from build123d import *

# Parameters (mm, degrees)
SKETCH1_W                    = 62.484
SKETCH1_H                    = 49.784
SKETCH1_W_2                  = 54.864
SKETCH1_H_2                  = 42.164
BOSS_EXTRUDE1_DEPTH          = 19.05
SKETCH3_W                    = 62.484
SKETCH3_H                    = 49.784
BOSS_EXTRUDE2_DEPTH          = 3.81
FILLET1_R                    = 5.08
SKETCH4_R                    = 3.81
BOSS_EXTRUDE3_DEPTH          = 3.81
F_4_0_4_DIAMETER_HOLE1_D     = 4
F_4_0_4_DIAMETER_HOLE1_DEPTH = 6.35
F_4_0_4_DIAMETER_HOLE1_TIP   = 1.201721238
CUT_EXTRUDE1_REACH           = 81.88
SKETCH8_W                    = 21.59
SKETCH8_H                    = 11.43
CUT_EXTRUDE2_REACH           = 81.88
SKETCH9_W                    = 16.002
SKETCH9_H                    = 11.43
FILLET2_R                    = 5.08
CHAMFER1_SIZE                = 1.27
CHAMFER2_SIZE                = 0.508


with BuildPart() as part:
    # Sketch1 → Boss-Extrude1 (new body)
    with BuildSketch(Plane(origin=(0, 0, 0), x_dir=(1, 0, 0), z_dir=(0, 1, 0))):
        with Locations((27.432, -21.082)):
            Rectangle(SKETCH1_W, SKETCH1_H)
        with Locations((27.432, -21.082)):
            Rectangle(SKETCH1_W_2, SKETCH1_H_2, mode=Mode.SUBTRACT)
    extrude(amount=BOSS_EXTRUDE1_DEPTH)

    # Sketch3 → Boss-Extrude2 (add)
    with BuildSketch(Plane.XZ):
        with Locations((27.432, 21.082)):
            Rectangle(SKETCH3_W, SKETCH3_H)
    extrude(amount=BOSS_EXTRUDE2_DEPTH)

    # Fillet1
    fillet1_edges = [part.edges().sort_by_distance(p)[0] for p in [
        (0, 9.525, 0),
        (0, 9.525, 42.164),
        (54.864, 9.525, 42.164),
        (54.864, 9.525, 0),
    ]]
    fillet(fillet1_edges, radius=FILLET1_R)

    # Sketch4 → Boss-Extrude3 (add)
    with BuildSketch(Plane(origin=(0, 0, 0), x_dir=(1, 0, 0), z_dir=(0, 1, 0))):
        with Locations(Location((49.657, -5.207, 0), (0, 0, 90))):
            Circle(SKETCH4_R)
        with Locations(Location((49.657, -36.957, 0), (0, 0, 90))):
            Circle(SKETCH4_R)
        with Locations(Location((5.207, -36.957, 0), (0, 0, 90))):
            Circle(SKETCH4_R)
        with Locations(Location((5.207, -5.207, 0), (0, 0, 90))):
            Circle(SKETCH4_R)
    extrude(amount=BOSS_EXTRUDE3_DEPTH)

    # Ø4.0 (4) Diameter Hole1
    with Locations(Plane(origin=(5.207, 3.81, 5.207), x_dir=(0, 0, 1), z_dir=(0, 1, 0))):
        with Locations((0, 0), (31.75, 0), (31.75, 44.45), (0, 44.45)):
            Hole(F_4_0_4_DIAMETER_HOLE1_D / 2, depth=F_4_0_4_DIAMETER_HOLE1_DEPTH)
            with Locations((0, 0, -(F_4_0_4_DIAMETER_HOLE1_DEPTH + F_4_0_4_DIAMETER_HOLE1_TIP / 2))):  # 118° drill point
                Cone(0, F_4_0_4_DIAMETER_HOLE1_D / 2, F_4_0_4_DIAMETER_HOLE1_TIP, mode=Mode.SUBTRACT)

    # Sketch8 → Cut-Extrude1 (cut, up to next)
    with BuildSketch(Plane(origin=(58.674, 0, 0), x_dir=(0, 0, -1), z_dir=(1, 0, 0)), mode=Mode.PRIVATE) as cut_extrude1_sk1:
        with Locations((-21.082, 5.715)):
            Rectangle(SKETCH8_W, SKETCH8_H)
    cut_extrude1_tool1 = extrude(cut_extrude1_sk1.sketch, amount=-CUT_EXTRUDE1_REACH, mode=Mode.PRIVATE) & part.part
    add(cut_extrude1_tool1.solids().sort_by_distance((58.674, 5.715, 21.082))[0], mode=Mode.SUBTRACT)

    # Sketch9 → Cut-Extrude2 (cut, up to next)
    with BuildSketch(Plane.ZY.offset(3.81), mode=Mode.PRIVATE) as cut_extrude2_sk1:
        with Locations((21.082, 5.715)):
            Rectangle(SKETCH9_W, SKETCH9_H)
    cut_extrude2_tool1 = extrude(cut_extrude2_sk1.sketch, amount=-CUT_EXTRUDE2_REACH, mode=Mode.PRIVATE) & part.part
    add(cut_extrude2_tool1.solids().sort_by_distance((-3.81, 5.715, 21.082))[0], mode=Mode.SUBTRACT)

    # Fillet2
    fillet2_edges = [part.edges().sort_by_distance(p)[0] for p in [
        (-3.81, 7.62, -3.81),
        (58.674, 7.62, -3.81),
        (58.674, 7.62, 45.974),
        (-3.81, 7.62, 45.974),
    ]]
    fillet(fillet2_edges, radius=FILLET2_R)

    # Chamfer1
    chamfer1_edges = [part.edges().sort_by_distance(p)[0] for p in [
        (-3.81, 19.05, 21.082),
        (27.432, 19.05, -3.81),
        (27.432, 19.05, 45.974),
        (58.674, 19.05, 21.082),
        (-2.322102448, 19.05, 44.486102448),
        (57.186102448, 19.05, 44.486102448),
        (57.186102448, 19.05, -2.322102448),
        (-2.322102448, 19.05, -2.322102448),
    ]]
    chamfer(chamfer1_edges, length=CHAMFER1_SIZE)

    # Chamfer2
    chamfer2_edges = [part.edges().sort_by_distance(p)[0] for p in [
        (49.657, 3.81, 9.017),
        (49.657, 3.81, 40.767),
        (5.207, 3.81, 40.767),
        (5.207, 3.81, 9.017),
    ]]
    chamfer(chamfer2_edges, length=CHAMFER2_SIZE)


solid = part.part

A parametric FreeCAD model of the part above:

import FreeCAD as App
import Part
import Sketcher
Q = App.Units.Quantity


def edges_at(feature, points):
    """Names of the edges that pass closest to the given points."""
    edges = feature.Shape.Edges
    near = lambda p: min(range(len(edges)), key=lambda i: edges[i].distToShape(Part.Vertex(*p))[0])
    return sorted({f"Edge{near(p) + 1}" for p in points})


def add_polygon(sketch, points):
    """Adds a closed chain of lines whose ends are joined by coincident constraints."""
    first, n = sketch.GeometryCount, len(points)
    for a, b in zip(points, points[1:] + points[:1]):
        sketch.addGeometry(Part.LineSegment(App.Vector(*a, 0), App.Vector(*b, 0)), False)
    for i in range(n):
        sketch.addConstraint(Sketcher.Constraint("Coincident", first + i, 2, first + (i + 1) % n, 1))

doc = App.newDocument("Part")
body = doc.addObject("PartDesign::Body", "Body")

# Sketch on XZ plane
sketch1 = body.newObject("Sketcher::SketchObject", "Sketch")
sketch1.AttachmentSupport = (doc.getObject("XZ_Plane"), [""])
sketch1.MapMode = "FlatFace"
add_polygon(sketch1, [(-4, -4), (-4, 46), (59, 46), (59, -4)])  # lines 0-3
add_polygon(sketch1, [(55, 42), (0, 42), (0, 0), (55, 0)])  # lines 4-7
sketch1.addConstraint(Sketcher.Constraint("Vertical", 0))
sketch1.addConstraint(Sketcher.Constraint("Horizontal", 1))
sketch1.addConstraint(Sketcher.Constraint("Vertical", 2))
sketch1.addConstraint(Sketcher.Constraint("Horizontal", 3))
sketch1.addConstraint(Sketcher.Constraint("Horizontal", 4))
sketch1.addConstraint(Sketcher.Constraint("Vertical", 5))
sketch1.addConstraint(Sketcher.Constraint("Horizontal", 6))
sketch1.addConstraint(Sketcher.Constraint("Vertical", 7))
sketch1.addConstraint(Sketcher.Constraint("Coincident", 5, 2, -1, 1))
sketch1.addConstraint(Sketcher.Constraint("DistanceX", 1, 1, 1, 2, Q("2.46 in")))
sketch1.addConstraint(Sketcher.Constraint("DistanceX", 4, 2, 4, 1, Q("2.16 in")))
sketch1.addConstraint(Sketcher.Constraint("DistanceY", 0, 1, 0, 2, Q("1.96 in")))
sketch1.addConstraint(Sketcher.Constraint("DistanceY", 5, 2, 5, 1, Q("1.66 in")))
sketch1.addConstraint(Sketcher.Constraint("DistanceX", 0, 2, -1, 1, Q("0.15 in")))
sketch1.addConstraint(Sketcher.Constraint("DistanceY", -1, 1, 0, 2, Q("1.81 in")))
pad1 = body.newObject("PartDesign::Pad", "Pad")
pad1.Profile = sketch1
pad1.Length = Q("0.75 in")
pad1.Reversed = True

# Sketch on XZ plane
sketch2 = body.newObject("Sketcher::SketchObject", "Sketch001")
sketch2.AttachmentSupport = (doc.getObject("XZ_Plane"), [""])
sketch2.MapMode = "FlatFace"
add_polygon(sketch2, [(-4, 46), (-4, -4), (59, -4), (59, 46)])  # lines 0-3
sketch2.addConstraint(Sketcher.Constraint("Vertical", 0))
sketch2.addConstraint(Sketcher.Constraint("Horizontal", 1))
sketch2.addConstraint(Sketcher.Constraint("Vertical", 2))
sketch2.addConstraint(Sketcher.Constraint("Horizontal", 3))
sketch2.addConstraint(Sketcher.Constraint("DistanceX", 1, 1, 1, 2, Q("2.46 in")))
sketch2.addConstraint(Sketcher.Constraint("DistanceY", 0, 2, 0, 1, Q("1.96 in")))
sketch2.addConstraint(Sketcher.Constraint("DistanceX", 0, 2, -1, 1, Q("0.15 in")))
sketch2.addConstraint(Sketcher.Constraint("DistanceY", 0, 2, -1, 1, Q("0.15 in")))
pad2 = body.newObject("PartDesign::Pad", "Pad001")
pad2.Profile = sketch2
pad2.Length = Q("0.15 in")
doc.recompute()

fillet = body.newObject("PartDesign::Fillet", "Fillet")
fillet.Base = (pad2, edges_at(pad2, [
    (0, 9.525, 0),
    (0, 9.525, 42.164),
    (54.864, 9.525, 42.164),
    (54.864, 9.525, 0),
]))
fillet.Radius = Q("0.2 in")

# Sketch on XZ plane
sketch3 = body.newObject("Sketcher::SketchObject", "Sketch002")
sketch3.AttachmentSupport = (doc.getObject("XZ_Plane"), [""])
sketch3.MapMode = "FlatFace"
sketch3.addGeometry(Part.Circle(App.Vector(49.7, 5.2, 0), App.Vector(0, 0, 1), 3.8), False)
sketch3.addGeometry(Part.Circle(App.Vector(49.7, 37, 0), App.Vector(0, 0, 1), 3.8), False)
sketch3.addGeometry(Part.Circle(App.Vector(5.2, 37, 0), App.Vector(0, 0, 1), 3.8), False)
sketch3.addGeometry(Part.Circle(App.Vector(5.2, 5.2, 0), App.Vector(0, 0, 1), 3.8), False)
sketch3.addConstraint(Sketcher.Constraint("Equal", 0, 1))
sketch3.addConstraint(Sketcher.Constraint("Equal", 1, 2))
sketch3.addConstraint(Sketcher.Constraint("Equal", 2, 3))
sketch3.addConstraint(Sketcher.Constraint("Horizontal", 1, 3, 2, 3))
sketch3.addConstraint(Sketcher.Constraint("Horizontal", 0, 3, 3, 3))
sketch3.addConstraint(Sketcher.Constraint("Vertical", 0, 3, 1, 3))
sketch3.addConstraint(Sketcher.Constraint("Vertical", 2, 3, 3, 3))
sketch3.addConstraint(Sketcher.Constraint("Diameter", 0, Q("0.3 in")))
sketch3.addConstraint(Sketcher.Constraint("DistanceY", 0, 3, 1, 3, Q("1.25 in")))
sketch3.addConstraint(Sketcher.Constraint("DistanceX", 2, 3, 1, 3, Q("1.75 in")))
sketch3.addConstraint(Sketcher.Constraint("DistanceX", -1, 1, 0, 3, Q("1.955 in")))
sketch3.addConstraint(Sketcher.Constraint("DistanceY", -1, 1, 0, 3, Q("0.205 in")))
pad3 = body.newObject("PartDesign::Pad", "Pad002")
pad3.Profile = sketch3
pad3.Length = Q("0.15 in")
pad3.Reversed = True

# Sketch on XZ plane
sketch4 = body.newObject("Sketcher::SketchObject", "Sketch003")
sketch4.AttachmentSupport = (doc.getObject("XZ_Plane"), [""])
sketch4.MapMode = "FlatFace"
sketch4.AttachmentOffset = App.Placement(App.Vector(0, 0, -0.15 * 25.4), App.Rotation())
sketch4.addGeometry(Part.Circle(App.Vector(5.2, 5.2, 0), App.Vector(0, 0, 1), 2), False)
sketch4.addGeometry(Part.Circle(App.Vector(5.2, 37, 0), App.Vector(0, 0, 1), 2), False)
sketch4.addGeometry(Part.Circle(App.Vector(49.7, 37, 0), App.Vector(0, 0, 1), 2), False)
sketch4.addGeometry(Part.Circle(App.Vector(49.7, 5.2, 0), App.Vector(0, 0, 1), 2), False)
sketch4.addConstraint(Sketcher.Constraint("Equal", 0, 1))
sketch4.addConstraint(Sketcher.Constraint("Equal", 1, 2))
sketch4.addConstraint(Sketcher.Constraint("Equal", 2, 3))
sketch4.addConstraint(Sketcher.Constraint("Horizontal", 1, 3, 2, 3))
sketch4.addConstraint(Sketcher.Constraint("Horizontal", 0, 3, 3, 3))
sketch4.addConstraint(Sketcher.Constraint("Vertical", 0, 3, 1, 3))
sketch4.addConstraint(Sketcher.Constraint("Vertical", 2, 3, 3, 3))
sketch4.addConstraint(Sketcher.Constraint("Diameter", 0, 4.0))
sketch4.addConstraint(Sketcher.Constraint("DistanceY", 0, 3, 1, 3, Q("1.25 in")))
sketch4.addConstraint(Sketcher.Constraint("DistanceX", 1, 3, 2, 3, Q("1.75 in")))
sketch4.addConstraint(Sketcher.Constraint("DistanceX", -1, 1, 0, 3, Q("0.205 in")))
sketch4.addConstraint(Sketcher.Constraint("DistanceY", -1, 1, 0, 3, Q("0.205 in")))
doc.recompute()
hole = body.newObject("PartDesign::Hole", "Hole")
hole.Profile = sketch4
hole.ThreadType = "None"
hole.Diameter = 4
hole.DepthType = "Dimension"
hole.Depth = Q("0.25 in")
hole.DrillPoint = "Angled"
hole.DrillPointAngle = 118
hole.Reversed = True

# Sketch on YZ plane
sketch5 = body.newObject("Sketcher::SketchObject", "Sketch004")
sketch5.AttachmentSupport = (doc.getObject("YZ_Plane"), [""])
sketch5.MapMode = "FlatFace"
sketch5.AttachmentOffset = App.Placement(App.Vector(0, 0, 2.31 * 25.4), App.Rotation())
add_polygon(sketch5, [(11, 32), (0, 32), (0, 10), (11, 10)])  # lines 0-3
sketch5.addConstraint(Sketcher.Constraint("Horizontal", 0))
sketch5.addConstraint(Sketcher.Constraint("Vertical", 1))
sketch5.addConstraint(Sketcher.Constraint("Horizontal", 2))
sketch5.addConstraint(Sketcher.Constraint("Vertical", 3))
sketch5.addConstraint(Sketcher.Constraint("PointOnObject", 0, 2, -2))
sketch5.addConstraint(Sketcher.Constraint("DistanceX", 0, 2, 0, 1, Q("0.45 in")))
sketch5.addConstraint(Sketcher.Constraint("DistanceY", 1, 2, 1, 1, Q("0.85 in")))
sketch5.addConstraint(Sketcher.Constraint("DistanceY", -1, 1, 0, 2, Q("1.255 in")))
pocket1 = body.newObject("PartDesign::Pocket", "Pocket")
pocket1.Profile = sketch5
pocket1.Type = "UpToFirst"

# Sketch on YZ plane
sketch6 = body.newObject("Sketcher::SketchObject", "Sketch005")
sketch6.AttachmentSupport = (doc.getObject("YZ_Plane"), [""])
sketch6.MapMode = "FlatFace"
sketch6.AttachmentOffset = App.Placement(App.Vector(0, 0, -0.15 * 25.4), App.Rotation())
add_polygon(sketch6, [(11, 13), (0, 13), (0, 29), (11, 29)])  # lines 0-3
sketch6.addConstraint(Sketcher.Constraint("Horizontal", 0))
sketch6.addConstraint(Sketcher.Constraint("Vertical", 1))
sketch6.addConstraint(Sketcher.Constraint("Horizontal", 2))
sketch6.addConstraint(Sketcher.Constraint("Vertical", 3))
sketch6.addConstraint(Sketcher.Constraint("PointOnObject", 0, 2, -2))
sketch6.addConstraint(Sketcher.Constraint("DistanceX", 0, 2, 0, 1, Q("0.45 in")))
sketch6.addConstraint(Sketcher.Constraint("DistanceY", 1, 1, 1, 2, Q("0.63 in")))
sketch6.addConstraint(Sketcher.Constraint("DistanceY", -1, 1, 0, 2, Q("0.515 in")))
pocket2 = body.newObject("PartDesign::Pocket", "Pocket001")
pocket2.Profile = sketch6
pocket2.Type = "UpToFirst"
pocket2.Reversed = True
doc.recompute()

fillet2 = body.newObject("PartDesign::Fillet", "Fillet001")
fillet2.Base = (pocket2, edges_at(pocket2, [
    (-3.81, 7.62, -3.81),
    (58.674, 7.62, -3.81),
    (58.674, 7.62, 45.974),
    (-3.81, 7.62, 45.974),
]))
fillet2.Radius = Q("0.2 in")
doc.recompute()

chamfer = body.newObject("PartDesign::Chamfer", "Chamfer")
chamfer.Base = (fillet2, edges_at(fillet2, [
    (-3.81, 19.05, 21.082),
    (27.432, 19.05, -3.81),
    (27.432, 19.05, 45.974),
    (58.674, 19.05, 21.082),
    (-2.322, 19.05, 44.486),
    (57.186, 19.05, 44.486),
    (57.186, 19.05, -2.322),
    (-2.322, 19.05, -2.322),
]))
chamfer.Size = Q("0.05 in")
doc.recompute()

chamfer2 = body.newObject("PartDesign::Chamfer", "Chamfer001")
chamfer2.Base = (chamfer, edges_at(chamfer, [
    (49.657, 3.81, 9.017),
    (49.657, 3.81, 40.767),
    (5.207, 3.81, 40.767),
    (5.207, 3.81, 9.017),
]))
chamfer2.Size = Q("0.02 in")

doc.recompute()
